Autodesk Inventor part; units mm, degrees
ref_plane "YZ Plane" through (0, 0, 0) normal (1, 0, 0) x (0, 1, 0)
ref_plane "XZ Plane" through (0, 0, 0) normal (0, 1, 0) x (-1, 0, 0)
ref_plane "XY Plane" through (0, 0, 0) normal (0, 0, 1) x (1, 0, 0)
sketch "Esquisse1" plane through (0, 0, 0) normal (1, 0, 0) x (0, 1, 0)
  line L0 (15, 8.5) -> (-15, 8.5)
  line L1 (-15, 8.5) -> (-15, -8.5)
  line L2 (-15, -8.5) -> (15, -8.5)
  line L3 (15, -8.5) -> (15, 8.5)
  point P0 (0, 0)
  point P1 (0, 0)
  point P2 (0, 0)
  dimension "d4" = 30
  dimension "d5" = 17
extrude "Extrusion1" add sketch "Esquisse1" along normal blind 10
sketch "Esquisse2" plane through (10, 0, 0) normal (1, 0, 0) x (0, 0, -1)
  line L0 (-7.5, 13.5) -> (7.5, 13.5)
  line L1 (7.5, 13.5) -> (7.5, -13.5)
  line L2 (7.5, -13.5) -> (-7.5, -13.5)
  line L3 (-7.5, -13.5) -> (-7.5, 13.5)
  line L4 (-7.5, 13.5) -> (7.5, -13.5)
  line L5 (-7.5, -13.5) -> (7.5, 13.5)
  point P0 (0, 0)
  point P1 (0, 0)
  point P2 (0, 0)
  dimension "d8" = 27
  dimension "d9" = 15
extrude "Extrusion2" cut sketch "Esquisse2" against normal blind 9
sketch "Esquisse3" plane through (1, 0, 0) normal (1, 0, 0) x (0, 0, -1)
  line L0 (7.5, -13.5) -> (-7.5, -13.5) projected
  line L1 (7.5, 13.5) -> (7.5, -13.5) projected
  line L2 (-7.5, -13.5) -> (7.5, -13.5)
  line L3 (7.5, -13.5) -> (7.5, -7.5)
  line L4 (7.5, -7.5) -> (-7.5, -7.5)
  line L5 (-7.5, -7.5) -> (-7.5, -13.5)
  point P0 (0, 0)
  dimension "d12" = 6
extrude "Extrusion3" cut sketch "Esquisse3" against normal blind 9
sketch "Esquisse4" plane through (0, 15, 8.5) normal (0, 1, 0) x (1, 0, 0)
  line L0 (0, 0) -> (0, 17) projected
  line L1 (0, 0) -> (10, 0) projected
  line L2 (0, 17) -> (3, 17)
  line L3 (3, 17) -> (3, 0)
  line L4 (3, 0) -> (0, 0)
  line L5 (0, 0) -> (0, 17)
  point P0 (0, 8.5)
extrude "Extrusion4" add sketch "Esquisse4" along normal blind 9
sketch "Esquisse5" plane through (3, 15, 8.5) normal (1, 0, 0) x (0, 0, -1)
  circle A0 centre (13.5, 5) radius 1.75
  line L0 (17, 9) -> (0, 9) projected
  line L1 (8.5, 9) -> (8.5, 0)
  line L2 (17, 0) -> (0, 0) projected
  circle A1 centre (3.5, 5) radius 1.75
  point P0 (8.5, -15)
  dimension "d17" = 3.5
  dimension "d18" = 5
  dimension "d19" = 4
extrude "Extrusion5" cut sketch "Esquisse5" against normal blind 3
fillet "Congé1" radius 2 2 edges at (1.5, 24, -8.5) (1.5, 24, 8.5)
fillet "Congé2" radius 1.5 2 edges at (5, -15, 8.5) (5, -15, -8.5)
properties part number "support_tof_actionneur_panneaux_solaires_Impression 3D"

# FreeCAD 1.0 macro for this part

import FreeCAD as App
import Part
import Sketcher


def edges_at(feature, points):
    """Names of the edges that pass closest to the given points."""
    edges = feature.Shape.Edges
    near = lambda p: min(range(len(edges)), key=lambda i: edges[i].distToShape(Part.Vertex(*p))[0])
    return sorted({f"Edge{near(p) + 1}" for p in points})

doc = App.newDocument("Part")
body = doc.addObject("PartDesign::Body", "Body")

sketch1 = body.newObject("Sketcher::SketchObject", "Sketch")
sketch1.AttachmentSupport = (doc.getObject("YZ_Plane"), [""])
sketch1.MapMode = "FlatFace"
sketch1.addGeometry([
    Part.LineSegment(App.Vector(15, -8, 0), App.Vector(15, 8, 0)),
    Part.LineSegment(App.Vector(15, 8, 0), App.Vector(-15, 8, 0)),
    Part.LineSegment(App.Vector(-15, 8, 0), App.Vector(-15, -8, 0)),
    Part.LineSegment(App.Vector(-15, -8, 0), App.Vector(15, -8, 0)),
], False)
sketch1.addConstraint([
    Sketcher.Constraint("Coincident", 0, 2, 1, 1),
    Sketcher.Constraint("Coincident", 1, 2, 2, 1),
    Sketcher.Constraint("Coincident", 2, 2, 3, 1),
    Sketcher.Constraint("Coincident", 3, 2, 0, 1),
    Sketcher.Constraint("Vertical", 0),
    Sketcher.Constraint("Horizontal", 1),
    Sketcher.Constraint("Vertical", 2),
    Sketcher.Constraint("Horizontal", 3),
    Sketcher.Constraint("Symmetric", 0, 2, 2, 2, -1, 1),
    Sketcher.Constraint("DistanceX", 1, 2, 1, 1, 30.0),
    Sketcher.Constraint("DistanceY", 0, 1, 0, 2, 17.0),
])
pad1 = body.newObject("PartDesign::Pad", "Pad")
pad1.Profile = sketch1
pad1.Length = 10

sketch2 = body.newObject("Sketcher::SketchObject", "Sketch001")
sketch2.AttachmentSupport = (doc.getObject("YZ_Plane"), [""])
sketch2.MapMode = "FlatFace"
sketch2.AttachmentOffset = App.Placement(App.Vector(0, 0, 10), App.Rotation())
sketch2.addGeometry([
    Part.LineSegment(App.Vector(14, 8, 0), App.Vector(-14, 8, 0)),
    Part.LineSegment(App.Vector(-14, 8, 0), App.Vector(-14, -8, 0)),
    Part.LineSegment(App.Vector(-14, -8, 0), App.Vector(14, -8, 0)),
    Part.LineSegment(App.Vector(14, -8, 0), App.Vector(14, 8, 0)),
], False)
sketch2.addConstraint([
    Sketcher.Constraint("Coincident", 0, 2, 1, 1),
    Sketcher.Constraint("Coincident", 1, 2, 2, 1),
    Sketcher.Constraint("Coincident", 2, 2, 3, 1),
    Sketcher.Constraint("Coincident", 3, 2, 0, 1),
    Sketcher.Constraint("Horizontal", 0),
    Sketcher.Constraint("Vertical", 1),
    Sketcher.Constraint("Horizontal", 2),
    Sketcher.Constraint("Vertical", 3),
    Sketcher.Constraint("Symmetric", 0, 2, 2, 2, -1, 1),
    Sketcher.Constraint("DistanceX", 0, 2, 0, 1, 27.0),
    Sketcher.Constraint("DistanceY", 1, 2, 1, 1, 15.0),
])
pocket1 = body.newObject("PartDesign::Pocket", "Pocket")
pocket1.Profile = sketch2
pocket1.Length = 9

sketch3 = body.newObject("Sketcher::SketchObject", "Sketch002")
sketch3.AttachmentSupport = (doc.getObject("YZ_Plane"), [""])
sketch3.MapMode = "FlatFace"
sketch3.AttachmentOffset = App.Placement(App.Vector(0, 0, 1), App.Rotation())
sketch3.addGeometry([
    Part.LineSegment(App.Vector(-14, 8, 0), App.Vector(-14, -8, 0)),
    Part.LineSegment(App.Vector(-14, -8, 0), App.Vector(-8, -8, 0)),
    Part.LineSegment(App.Vector(-8, -8, 0), App.Vector(-8, 8, 0)),
    Part.LineSegment(App.Vector(-8, 8, 0), App.Vector(-14, 8, 0)),
], False)
sketch3.addConstraint([
    Sketcher.Constraint("Coincident", 0, 2, 1, 1),
    Sketcher.Constraint("Coincident", 1, 2, 2, 1),
    Sketcher.Constraint("Coincident", 2, 2, 3, 1),
    Sketcher.Constraint("Coincident", 3, 2, 0, 1),
    Sketcher.Constraint("Vertical", 0),
    Sketcher.Constraint("Horizontal", 1),
    Sketcher.Constraint("Vertical", 2),
    Sketcher.Constraint("Horizontal", 3),
    Sketcher.Constraint("DistanceX", 1, 1, 1, 2, 6.0),
    Sketcher.Constraint("DistanceY", 0, 2, 0, 1, 15.0),
    Sketcher.Constraint("DistanceX", 0, 2, -1, 1, 13.5),
    Sketcher.Constraint("DistanceY", 0, 2, -1, 1, 7.5),
])
pocket2 = body.newObject("PartDesign::Pocket", "Pocket001")
pocket2.Profile = sketch3
pocket2.Length = 9

sketch4 = body.newObject("Sketcher::SketchObject", "Sketch003")
sketch4.AttachmentSupport = (doc.getObject("XZ_Plane"), [""])
sketch4.MapMode = "FlatFace"
sketch4.AttachmentOffset = App.Placement(App.Vector(0, 0, -15), App.Rotation())
sketch4.addGeometry([
    Part.LineSegment(App.Vector(0, -8.5, 0), App.Vector(0, 8.5, 0)),
    Part.LineSegment(App.Vector(0, 8.5, 0), App.Vector(3, 8.5, 0)),
    Part.LineSegment(App.Vector(3, 8.5, 0), App.Vector(3, -8.5, 0)),
    Part.LineSegment(App.Vector(3, -8.5, 0), App.Vector(0, -8.5, 0)),
], False)
sketch4.addConstraint([
    Sketcher.Constraint("Coincident", 0, 2, 1, 1),
    Sketcher.Constraint("Coincident", 1, 2, 2, 1),
    Sketcher.Constraint("Coincident", 2, 2, 3, 1),
    Sketcher.Constraint("Coincident", 3, 2, 0, 1),
    Sketcher.Constraint("Vertical", 0),
    Sketcher.Constraint("Horizontal", 1),
    Sketcher.Constraint("Vertical", 2),
    Sketcher.Constraint("Horizontal", 3),
    Sketcher.Constraint("Symmetric", 0, 2, 3, 2, -1, 1),
    Sketcher.Constraint("DistanceX", 1, 1, 1, 2, 3.0),
    Sketcher.Constraint("DistanceY", 0, 1, 0, 2, 17.0),
])
pad2 = body.newObject("PartDesign::Pad", "Pad001")
pad2.Profile = sketch4
pad2.Length = 9
pad2.Reversed = True

sketch5 = body.newObject("Sketcher::SketchObject", "Sketch004")
sketch5.AttachmentSupport = (doc.getObject("YZ_Plane"), [""])
sketch5.MapMode = "FlatFace"
sketch5.AttachmentOffset = App.Placement(App.Vector(0, 0, 3), App.Rotation())
sketch5.addGeometry([
    Part.Circle(App.Vector(20, -5, 0), App.Vector(0, 0, 1), 1.8),
    Part.Circle(App.Vector(20, 5, 0), App.Vector(0, 0, 1), 1.8),
], False)
sketch5.addConstraint([
    Sketcher.Constraint("Equal", 0, 1),
    Sketcher.Constraint("Symmetric", 0, 3, 1, 3, -1),
    Sketcher.Constraint("Diameter", 0, 3.5),
    Sketcher.Constraint("DistanceY", 0, 3, -1, 1, 5.0),
    Sketcher.Constraint("DistanceX", -1, 1, 0, 3, 20.0),
])
pocket3 = body.newObject("PartDesign::Pocket", "Pocket002")
pocket3.Profile = sketch5
pocket3.Length = 3
doc.recompute()

fillet = body.newObject("PartDesign::Fillet", "Fillet")
fillet.Base = (pocket3, edges_at(pocket3, [(1.5, 24, -8.5), (1.5, 24, 8.5)]))
fillet.Radius = 2
doc.recompute()

fillet2 = body.newObject("PartDesign::Fillet", "Fillet001")
fillet2.Base = (fillet, edges_at(fillet, [(5, -15, 8.5), (5, -15, -8.5)]))
fillet2.Radius = 1.5

doc.recompute()
